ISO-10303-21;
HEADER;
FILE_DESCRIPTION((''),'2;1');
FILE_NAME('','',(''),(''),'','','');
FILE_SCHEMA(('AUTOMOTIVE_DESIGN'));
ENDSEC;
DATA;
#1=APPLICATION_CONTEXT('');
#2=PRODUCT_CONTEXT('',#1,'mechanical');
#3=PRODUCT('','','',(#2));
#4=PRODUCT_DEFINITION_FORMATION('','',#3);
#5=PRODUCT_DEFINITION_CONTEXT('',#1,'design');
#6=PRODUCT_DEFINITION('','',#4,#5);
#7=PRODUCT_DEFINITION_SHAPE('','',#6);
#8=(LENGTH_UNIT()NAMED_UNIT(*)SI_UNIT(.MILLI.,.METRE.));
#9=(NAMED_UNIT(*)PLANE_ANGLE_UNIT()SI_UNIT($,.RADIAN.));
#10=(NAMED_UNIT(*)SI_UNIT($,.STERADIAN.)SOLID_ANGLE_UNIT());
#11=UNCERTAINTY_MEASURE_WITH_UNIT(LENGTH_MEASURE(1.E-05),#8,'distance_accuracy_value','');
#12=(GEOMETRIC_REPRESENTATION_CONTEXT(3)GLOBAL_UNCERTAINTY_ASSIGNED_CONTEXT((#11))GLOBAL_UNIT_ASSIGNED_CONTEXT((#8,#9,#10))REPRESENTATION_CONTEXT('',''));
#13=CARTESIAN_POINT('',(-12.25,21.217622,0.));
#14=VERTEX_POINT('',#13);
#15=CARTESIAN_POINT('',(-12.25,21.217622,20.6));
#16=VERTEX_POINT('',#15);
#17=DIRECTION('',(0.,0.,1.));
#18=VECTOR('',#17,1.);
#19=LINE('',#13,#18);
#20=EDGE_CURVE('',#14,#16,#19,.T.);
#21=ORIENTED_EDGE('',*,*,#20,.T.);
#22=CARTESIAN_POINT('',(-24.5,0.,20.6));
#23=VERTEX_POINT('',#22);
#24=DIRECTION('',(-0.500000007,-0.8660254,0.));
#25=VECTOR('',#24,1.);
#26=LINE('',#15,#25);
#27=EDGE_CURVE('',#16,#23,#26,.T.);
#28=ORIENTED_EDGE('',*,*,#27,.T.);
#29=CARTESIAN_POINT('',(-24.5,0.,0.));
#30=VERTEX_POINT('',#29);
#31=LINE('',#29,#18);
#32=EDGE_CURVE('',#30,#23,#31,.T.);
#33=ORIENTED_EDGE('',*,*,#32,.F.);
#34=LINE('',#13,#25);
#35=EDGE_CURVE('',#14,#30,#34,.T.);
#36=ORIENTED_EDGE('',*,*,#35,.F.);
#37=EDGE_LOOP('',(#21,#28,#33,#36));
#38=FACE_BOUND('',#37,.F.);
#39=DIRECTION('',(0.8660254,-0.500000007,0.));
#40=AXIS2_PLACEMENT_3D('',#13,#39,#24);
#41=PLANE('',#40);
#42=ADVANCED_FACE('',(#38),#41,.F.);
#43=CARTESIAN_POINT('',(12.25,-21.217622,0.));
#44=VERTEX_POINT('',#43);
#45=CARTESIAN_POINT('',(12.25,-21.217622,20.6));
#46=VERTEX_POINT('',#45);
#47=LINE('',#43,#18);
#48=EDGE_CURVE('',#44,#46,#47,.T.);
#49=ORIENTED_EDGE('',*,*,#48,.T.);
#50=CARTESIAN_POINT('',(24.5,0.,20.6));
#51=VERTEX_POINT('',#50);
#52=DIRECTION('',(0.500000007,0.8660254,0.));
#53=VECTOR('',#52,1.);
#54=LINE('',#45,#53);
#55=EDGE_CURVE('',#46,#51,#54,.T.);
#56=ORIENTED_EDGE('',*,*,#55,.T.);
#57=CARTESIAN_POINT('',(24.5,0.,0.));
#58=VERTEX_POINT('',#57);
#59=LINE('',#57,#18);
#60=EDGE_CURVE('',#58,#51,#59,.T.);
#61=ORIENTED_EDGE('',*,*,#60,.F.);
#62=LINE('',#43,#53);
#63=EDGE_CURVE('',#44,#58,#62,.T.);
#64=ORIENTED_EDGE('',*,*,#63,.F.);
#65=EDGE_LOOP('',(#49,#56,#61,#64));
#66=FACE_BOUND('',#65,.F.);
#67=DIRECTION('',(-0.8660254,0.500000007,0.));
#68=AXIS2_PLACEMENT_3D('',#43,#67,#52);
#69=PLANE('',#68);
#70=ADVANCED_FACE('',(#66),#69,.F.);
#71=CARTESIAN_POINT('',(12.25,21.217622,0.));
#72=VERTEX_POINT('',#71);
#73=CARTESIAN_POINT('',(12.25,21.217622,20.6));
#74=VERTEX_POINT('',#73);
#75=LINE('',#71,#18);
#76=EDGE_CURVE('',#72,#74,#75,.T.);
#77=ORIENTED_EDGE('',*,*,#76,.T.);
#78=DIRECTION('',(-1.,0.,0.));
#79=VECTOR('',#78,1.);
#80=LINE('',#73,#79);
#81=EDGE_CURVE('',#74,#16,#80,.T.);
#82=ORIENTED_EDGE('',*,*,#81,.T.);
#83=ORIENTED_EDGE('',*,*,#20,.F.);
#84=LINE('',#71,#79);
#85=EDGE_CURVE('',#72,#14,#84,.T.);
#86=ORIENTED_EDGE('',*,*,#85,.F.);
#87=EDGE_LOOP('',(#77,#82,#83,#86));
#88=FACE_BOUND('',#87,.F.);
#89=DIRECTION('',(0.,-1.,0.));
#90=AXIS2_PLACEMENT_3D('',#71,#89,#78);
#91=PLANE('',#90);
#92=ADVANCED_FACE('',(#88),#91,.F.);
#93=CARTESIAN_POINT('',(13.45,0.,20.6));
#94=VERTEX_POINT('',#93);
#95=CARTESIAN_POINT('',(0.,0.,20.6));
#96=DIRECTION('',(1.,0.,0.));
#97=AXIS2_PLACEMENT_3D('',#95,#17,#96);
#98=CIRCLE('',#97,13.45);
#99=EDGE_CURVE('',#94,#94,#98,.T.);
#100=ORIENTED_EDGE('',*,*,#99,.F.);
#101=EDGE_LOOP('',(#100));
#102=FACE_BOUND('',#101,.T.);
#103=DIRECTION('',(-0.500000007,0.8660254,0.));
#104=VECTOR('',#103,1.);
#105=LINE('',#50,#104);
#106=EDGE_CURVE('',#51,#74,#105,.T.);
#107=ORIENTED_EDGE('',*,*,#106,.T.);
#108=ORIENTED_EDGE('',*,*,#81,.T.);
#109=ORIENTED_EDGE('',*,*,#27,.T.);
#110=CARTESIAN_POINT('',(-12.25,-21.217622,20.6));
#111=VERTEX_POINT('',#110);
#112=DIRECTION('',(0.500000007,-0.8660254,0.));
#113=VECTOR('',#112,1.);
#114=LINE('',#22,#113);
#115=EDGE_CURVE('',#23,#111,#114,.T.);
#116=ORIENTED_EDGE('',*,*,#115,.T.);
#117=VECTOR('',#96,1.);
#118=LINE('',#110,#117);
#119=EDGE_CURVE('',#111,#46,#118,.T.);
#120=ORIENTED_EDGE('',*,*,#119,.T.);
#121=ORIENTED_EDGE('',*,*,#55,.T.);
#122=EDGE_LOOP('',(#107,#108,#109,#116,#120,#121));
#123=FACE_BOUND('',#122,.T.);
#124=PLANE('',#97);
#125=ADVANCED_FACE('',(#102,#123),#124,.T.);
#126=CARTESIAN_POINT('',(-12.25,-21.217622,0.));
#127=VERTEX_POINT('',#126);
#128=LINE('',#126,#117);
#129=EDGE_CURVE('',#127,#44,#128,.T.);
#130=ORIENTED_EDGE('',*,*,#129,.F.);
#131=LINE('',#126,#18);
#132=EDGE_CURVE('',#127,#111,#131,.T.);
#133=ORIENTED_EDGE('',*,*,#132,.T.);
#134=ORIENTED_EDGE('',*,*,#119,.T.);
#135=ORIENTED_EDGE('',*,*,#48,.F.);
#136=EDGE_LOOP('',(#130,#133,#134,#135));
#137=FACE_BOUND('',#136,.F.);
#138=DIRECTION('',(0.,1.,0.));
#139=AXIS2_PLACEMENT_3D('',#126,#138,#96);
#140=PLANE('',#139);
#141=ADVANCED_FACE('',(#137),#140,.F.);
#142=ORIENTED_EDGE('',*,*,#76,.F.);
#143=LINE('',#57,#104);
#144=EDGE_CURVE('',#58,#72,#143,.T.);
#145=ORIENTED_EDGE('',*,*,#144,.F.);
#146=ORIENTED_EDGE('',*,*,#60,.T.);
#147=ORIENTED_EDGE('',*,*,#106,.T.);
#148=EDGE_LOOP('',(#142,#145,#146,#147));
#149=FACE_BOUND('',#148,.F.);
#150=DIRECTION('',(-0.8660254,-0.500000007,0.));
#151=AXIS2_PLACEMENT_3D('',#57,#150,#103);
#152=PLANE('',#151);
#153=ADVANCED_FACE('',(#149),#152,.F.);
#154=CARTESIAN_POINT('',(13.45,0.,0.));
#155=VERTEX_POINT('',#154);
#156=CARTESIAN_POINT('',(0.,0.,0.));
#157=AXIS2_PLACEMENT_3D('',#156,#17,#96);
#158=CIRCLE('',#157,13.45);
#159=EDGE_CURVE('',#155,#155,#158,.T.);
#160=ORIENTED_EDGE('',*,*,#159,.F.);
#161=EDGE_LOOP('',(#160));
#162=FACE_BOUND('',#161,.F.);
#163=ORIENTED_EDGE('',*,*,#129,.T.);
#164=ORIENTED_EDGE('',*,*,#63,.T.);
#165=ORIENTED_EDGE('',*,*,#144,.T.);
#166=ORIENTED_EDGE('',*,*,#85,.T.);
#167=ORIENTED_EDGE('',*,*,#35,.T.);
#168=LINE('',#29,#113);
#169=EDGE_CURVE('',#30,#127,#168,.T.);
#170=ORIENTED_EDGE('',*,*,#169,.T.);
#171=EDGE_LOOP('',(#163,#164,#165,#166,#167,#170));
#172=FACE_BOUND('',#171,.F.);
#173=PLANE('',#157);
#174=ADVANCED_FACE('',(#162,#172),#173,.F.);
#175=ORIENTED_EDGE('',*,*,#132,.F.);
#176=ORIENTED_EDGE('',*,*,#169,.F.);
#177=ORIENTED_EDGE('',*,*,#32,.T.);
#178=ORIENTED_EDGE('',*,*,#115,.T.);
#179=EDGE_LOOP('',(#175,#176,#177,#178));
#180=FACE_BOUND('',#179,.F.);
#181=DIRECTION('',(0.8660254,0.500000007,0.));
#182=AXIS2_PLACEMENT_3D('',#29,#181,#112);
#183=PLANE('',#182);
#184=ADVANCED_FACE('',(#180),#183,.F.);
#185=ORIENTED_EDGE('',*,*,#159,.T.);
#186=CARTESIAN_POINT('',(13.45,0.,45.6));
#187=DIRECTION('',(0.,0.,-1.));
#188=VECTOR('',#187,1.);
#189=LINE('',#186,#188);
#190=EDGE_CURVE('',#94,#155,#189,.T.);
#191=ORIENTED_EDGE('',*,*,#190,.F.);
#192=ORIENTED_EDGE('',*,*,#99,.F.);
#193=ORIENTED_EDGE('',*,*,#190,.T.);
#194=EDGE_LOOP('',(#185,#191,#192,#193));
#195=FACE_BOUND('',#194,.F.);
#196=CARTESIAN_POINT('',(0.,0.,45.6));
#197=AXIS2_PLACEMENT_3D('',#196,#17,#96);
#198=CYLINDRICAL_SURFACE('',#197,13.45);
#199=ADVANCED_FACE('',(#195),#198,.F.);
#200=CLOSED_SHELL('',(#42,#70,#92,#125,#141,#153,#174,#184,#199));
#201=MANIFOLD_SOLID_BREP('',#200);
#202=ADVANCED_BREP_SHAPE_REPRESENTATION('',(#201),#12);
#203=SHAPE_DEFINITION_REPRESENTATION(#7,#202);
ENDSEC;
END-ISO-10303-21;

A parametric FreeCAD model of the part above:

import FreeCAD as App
import Part
import Sketcher
from FreeCAD import Vector
Q = App.Units.Quantity


def add_polygon(sketch, points):
    """Adds a closed chain of lines whose ends are joined by coincident constraints."""
    first, n = sketch.GeometryCount, len(points)
    for a, b in zip(points, points[1:] + points[:1]):
        sketch.addGeometry(Part.LineSegment(App.Vector(*a, 0), App.Vector(*b, 0)), False)
    for i in range(n):
        sketch.addConstraint(Sketcher.Constraint("Coincident", first + i, 2, first + (i + 1) % n, 1))

doc = App.newDocument("Part")
body = doc.addObject("PartDesign::Body", "Body")

sketch1 = doc.addObject("Sketcher::SketchObject", "Sketch")
body.addObject(sketch1)
sketch1.AttachmentSupport = (doc.XY_Plane, [""])
sketch1.MapMode = "FlatFace"
add_polygon(sketch1, [(-12, -21), (12, -21), (24, 0), (12, 21), (-12, 21), (-24, 0)])
sketch1.addConstraint(Sketcher.Constraint("Horizontal", 0))
sketch1.addConstraint(Sketcher.Constraint("Horizontal", 3))
sketch1.addConstraint(Sketcher.Constraint("Symmetric", 0, 2, 3, 2, -1, 1))
sketch1.addConstraint(Sketcher.Constraint("Symmetric", 1, 2, 4, 2, -1, 1))
sketch1.addConstraint(Sketcher.Constraint("PointOnObject", 1, 2, -1))
sketch1.addConstraint(Sketcher.Constraint("Parallel", 2, 5))
sketch1.addConstraint(Sketcher.Constraint("Vertical", 0, 2, 2, 2))
sketch1.addConstraint(Sketcher.Constraint("Angle", 1, Q("60 deg")))
sketch1.addConstraint(Sketcher.Constraint("DistanceX", 0, 1, 0, 2, Q("24.5 mm")))
sketch1.addConstraint(Sketcher.Constraint("DistanceX", 4, 2, 1, 2, Q("49 mm")))
pad1 = doc.addObject("PartDesign::Pad", "Pad")
body.addObject(pad1)
pad1.Profile = sketch1
pad1.Length = 20.6

sketch2 = doc.addObject("Sketcher::SketchObject", "Sketch001")
body.addObject(sketch2)
sketch2.AttachmentSupport = (doc.XY_Plane, [""])
sketch2.MapMode = "FlatFace"
sketch2.AttachmentOffset = App.Placement(Vector(0, 0, 20.6), App.Rotation())
sketch2.addGeometry(Part.Circle(Vector(0, 0, 0), Vector(0, 0, 1), 13), False)
sketch2.addConstraint(Sketcher.Constraint("Coincident", 0, 3, -1, 1))
sketch2.addConstraint(Sketcher.Constraint("Diameter", 0, Q("26.9 mm")))
pad2 = doc.addObject("PartDesign::Pad", "Pad001")
body.addObject(pad2)
pad2.Profile = sketch2
pad2.Length = 25

sketch3 = doc.addObject("Sketcher::SketchObject", "Sketch002")
body.addObject(sketch3)
sketch3.AttachmentSupport = (doc.XY_Plane, [""])
sketch3.MapMode = "FlatFace"
sketch3.AttachmentOffset = App.Placement(Vector(0, 0, 45.6), App.Rotation())
sketch3.addGeometry(Part.Circle(Vector(0, 0, 0), Vector(0, 0, 1), 13), False)
sketch3.addConstraint(Sketcher.Constraint("Coincident", 0, 3, -1, 1))
sketch3.addConstraint(Sketcher.Constraint("Diameter", 0, Q("26.9 mm")))
pocket1 = doc.addObject("PartDesign::Pocket", "Pocket")
body.addObject(pocket1)
pocket1.Profile = sketch3
pocket1.Type = "ThroughAll"

doc.recompute()
